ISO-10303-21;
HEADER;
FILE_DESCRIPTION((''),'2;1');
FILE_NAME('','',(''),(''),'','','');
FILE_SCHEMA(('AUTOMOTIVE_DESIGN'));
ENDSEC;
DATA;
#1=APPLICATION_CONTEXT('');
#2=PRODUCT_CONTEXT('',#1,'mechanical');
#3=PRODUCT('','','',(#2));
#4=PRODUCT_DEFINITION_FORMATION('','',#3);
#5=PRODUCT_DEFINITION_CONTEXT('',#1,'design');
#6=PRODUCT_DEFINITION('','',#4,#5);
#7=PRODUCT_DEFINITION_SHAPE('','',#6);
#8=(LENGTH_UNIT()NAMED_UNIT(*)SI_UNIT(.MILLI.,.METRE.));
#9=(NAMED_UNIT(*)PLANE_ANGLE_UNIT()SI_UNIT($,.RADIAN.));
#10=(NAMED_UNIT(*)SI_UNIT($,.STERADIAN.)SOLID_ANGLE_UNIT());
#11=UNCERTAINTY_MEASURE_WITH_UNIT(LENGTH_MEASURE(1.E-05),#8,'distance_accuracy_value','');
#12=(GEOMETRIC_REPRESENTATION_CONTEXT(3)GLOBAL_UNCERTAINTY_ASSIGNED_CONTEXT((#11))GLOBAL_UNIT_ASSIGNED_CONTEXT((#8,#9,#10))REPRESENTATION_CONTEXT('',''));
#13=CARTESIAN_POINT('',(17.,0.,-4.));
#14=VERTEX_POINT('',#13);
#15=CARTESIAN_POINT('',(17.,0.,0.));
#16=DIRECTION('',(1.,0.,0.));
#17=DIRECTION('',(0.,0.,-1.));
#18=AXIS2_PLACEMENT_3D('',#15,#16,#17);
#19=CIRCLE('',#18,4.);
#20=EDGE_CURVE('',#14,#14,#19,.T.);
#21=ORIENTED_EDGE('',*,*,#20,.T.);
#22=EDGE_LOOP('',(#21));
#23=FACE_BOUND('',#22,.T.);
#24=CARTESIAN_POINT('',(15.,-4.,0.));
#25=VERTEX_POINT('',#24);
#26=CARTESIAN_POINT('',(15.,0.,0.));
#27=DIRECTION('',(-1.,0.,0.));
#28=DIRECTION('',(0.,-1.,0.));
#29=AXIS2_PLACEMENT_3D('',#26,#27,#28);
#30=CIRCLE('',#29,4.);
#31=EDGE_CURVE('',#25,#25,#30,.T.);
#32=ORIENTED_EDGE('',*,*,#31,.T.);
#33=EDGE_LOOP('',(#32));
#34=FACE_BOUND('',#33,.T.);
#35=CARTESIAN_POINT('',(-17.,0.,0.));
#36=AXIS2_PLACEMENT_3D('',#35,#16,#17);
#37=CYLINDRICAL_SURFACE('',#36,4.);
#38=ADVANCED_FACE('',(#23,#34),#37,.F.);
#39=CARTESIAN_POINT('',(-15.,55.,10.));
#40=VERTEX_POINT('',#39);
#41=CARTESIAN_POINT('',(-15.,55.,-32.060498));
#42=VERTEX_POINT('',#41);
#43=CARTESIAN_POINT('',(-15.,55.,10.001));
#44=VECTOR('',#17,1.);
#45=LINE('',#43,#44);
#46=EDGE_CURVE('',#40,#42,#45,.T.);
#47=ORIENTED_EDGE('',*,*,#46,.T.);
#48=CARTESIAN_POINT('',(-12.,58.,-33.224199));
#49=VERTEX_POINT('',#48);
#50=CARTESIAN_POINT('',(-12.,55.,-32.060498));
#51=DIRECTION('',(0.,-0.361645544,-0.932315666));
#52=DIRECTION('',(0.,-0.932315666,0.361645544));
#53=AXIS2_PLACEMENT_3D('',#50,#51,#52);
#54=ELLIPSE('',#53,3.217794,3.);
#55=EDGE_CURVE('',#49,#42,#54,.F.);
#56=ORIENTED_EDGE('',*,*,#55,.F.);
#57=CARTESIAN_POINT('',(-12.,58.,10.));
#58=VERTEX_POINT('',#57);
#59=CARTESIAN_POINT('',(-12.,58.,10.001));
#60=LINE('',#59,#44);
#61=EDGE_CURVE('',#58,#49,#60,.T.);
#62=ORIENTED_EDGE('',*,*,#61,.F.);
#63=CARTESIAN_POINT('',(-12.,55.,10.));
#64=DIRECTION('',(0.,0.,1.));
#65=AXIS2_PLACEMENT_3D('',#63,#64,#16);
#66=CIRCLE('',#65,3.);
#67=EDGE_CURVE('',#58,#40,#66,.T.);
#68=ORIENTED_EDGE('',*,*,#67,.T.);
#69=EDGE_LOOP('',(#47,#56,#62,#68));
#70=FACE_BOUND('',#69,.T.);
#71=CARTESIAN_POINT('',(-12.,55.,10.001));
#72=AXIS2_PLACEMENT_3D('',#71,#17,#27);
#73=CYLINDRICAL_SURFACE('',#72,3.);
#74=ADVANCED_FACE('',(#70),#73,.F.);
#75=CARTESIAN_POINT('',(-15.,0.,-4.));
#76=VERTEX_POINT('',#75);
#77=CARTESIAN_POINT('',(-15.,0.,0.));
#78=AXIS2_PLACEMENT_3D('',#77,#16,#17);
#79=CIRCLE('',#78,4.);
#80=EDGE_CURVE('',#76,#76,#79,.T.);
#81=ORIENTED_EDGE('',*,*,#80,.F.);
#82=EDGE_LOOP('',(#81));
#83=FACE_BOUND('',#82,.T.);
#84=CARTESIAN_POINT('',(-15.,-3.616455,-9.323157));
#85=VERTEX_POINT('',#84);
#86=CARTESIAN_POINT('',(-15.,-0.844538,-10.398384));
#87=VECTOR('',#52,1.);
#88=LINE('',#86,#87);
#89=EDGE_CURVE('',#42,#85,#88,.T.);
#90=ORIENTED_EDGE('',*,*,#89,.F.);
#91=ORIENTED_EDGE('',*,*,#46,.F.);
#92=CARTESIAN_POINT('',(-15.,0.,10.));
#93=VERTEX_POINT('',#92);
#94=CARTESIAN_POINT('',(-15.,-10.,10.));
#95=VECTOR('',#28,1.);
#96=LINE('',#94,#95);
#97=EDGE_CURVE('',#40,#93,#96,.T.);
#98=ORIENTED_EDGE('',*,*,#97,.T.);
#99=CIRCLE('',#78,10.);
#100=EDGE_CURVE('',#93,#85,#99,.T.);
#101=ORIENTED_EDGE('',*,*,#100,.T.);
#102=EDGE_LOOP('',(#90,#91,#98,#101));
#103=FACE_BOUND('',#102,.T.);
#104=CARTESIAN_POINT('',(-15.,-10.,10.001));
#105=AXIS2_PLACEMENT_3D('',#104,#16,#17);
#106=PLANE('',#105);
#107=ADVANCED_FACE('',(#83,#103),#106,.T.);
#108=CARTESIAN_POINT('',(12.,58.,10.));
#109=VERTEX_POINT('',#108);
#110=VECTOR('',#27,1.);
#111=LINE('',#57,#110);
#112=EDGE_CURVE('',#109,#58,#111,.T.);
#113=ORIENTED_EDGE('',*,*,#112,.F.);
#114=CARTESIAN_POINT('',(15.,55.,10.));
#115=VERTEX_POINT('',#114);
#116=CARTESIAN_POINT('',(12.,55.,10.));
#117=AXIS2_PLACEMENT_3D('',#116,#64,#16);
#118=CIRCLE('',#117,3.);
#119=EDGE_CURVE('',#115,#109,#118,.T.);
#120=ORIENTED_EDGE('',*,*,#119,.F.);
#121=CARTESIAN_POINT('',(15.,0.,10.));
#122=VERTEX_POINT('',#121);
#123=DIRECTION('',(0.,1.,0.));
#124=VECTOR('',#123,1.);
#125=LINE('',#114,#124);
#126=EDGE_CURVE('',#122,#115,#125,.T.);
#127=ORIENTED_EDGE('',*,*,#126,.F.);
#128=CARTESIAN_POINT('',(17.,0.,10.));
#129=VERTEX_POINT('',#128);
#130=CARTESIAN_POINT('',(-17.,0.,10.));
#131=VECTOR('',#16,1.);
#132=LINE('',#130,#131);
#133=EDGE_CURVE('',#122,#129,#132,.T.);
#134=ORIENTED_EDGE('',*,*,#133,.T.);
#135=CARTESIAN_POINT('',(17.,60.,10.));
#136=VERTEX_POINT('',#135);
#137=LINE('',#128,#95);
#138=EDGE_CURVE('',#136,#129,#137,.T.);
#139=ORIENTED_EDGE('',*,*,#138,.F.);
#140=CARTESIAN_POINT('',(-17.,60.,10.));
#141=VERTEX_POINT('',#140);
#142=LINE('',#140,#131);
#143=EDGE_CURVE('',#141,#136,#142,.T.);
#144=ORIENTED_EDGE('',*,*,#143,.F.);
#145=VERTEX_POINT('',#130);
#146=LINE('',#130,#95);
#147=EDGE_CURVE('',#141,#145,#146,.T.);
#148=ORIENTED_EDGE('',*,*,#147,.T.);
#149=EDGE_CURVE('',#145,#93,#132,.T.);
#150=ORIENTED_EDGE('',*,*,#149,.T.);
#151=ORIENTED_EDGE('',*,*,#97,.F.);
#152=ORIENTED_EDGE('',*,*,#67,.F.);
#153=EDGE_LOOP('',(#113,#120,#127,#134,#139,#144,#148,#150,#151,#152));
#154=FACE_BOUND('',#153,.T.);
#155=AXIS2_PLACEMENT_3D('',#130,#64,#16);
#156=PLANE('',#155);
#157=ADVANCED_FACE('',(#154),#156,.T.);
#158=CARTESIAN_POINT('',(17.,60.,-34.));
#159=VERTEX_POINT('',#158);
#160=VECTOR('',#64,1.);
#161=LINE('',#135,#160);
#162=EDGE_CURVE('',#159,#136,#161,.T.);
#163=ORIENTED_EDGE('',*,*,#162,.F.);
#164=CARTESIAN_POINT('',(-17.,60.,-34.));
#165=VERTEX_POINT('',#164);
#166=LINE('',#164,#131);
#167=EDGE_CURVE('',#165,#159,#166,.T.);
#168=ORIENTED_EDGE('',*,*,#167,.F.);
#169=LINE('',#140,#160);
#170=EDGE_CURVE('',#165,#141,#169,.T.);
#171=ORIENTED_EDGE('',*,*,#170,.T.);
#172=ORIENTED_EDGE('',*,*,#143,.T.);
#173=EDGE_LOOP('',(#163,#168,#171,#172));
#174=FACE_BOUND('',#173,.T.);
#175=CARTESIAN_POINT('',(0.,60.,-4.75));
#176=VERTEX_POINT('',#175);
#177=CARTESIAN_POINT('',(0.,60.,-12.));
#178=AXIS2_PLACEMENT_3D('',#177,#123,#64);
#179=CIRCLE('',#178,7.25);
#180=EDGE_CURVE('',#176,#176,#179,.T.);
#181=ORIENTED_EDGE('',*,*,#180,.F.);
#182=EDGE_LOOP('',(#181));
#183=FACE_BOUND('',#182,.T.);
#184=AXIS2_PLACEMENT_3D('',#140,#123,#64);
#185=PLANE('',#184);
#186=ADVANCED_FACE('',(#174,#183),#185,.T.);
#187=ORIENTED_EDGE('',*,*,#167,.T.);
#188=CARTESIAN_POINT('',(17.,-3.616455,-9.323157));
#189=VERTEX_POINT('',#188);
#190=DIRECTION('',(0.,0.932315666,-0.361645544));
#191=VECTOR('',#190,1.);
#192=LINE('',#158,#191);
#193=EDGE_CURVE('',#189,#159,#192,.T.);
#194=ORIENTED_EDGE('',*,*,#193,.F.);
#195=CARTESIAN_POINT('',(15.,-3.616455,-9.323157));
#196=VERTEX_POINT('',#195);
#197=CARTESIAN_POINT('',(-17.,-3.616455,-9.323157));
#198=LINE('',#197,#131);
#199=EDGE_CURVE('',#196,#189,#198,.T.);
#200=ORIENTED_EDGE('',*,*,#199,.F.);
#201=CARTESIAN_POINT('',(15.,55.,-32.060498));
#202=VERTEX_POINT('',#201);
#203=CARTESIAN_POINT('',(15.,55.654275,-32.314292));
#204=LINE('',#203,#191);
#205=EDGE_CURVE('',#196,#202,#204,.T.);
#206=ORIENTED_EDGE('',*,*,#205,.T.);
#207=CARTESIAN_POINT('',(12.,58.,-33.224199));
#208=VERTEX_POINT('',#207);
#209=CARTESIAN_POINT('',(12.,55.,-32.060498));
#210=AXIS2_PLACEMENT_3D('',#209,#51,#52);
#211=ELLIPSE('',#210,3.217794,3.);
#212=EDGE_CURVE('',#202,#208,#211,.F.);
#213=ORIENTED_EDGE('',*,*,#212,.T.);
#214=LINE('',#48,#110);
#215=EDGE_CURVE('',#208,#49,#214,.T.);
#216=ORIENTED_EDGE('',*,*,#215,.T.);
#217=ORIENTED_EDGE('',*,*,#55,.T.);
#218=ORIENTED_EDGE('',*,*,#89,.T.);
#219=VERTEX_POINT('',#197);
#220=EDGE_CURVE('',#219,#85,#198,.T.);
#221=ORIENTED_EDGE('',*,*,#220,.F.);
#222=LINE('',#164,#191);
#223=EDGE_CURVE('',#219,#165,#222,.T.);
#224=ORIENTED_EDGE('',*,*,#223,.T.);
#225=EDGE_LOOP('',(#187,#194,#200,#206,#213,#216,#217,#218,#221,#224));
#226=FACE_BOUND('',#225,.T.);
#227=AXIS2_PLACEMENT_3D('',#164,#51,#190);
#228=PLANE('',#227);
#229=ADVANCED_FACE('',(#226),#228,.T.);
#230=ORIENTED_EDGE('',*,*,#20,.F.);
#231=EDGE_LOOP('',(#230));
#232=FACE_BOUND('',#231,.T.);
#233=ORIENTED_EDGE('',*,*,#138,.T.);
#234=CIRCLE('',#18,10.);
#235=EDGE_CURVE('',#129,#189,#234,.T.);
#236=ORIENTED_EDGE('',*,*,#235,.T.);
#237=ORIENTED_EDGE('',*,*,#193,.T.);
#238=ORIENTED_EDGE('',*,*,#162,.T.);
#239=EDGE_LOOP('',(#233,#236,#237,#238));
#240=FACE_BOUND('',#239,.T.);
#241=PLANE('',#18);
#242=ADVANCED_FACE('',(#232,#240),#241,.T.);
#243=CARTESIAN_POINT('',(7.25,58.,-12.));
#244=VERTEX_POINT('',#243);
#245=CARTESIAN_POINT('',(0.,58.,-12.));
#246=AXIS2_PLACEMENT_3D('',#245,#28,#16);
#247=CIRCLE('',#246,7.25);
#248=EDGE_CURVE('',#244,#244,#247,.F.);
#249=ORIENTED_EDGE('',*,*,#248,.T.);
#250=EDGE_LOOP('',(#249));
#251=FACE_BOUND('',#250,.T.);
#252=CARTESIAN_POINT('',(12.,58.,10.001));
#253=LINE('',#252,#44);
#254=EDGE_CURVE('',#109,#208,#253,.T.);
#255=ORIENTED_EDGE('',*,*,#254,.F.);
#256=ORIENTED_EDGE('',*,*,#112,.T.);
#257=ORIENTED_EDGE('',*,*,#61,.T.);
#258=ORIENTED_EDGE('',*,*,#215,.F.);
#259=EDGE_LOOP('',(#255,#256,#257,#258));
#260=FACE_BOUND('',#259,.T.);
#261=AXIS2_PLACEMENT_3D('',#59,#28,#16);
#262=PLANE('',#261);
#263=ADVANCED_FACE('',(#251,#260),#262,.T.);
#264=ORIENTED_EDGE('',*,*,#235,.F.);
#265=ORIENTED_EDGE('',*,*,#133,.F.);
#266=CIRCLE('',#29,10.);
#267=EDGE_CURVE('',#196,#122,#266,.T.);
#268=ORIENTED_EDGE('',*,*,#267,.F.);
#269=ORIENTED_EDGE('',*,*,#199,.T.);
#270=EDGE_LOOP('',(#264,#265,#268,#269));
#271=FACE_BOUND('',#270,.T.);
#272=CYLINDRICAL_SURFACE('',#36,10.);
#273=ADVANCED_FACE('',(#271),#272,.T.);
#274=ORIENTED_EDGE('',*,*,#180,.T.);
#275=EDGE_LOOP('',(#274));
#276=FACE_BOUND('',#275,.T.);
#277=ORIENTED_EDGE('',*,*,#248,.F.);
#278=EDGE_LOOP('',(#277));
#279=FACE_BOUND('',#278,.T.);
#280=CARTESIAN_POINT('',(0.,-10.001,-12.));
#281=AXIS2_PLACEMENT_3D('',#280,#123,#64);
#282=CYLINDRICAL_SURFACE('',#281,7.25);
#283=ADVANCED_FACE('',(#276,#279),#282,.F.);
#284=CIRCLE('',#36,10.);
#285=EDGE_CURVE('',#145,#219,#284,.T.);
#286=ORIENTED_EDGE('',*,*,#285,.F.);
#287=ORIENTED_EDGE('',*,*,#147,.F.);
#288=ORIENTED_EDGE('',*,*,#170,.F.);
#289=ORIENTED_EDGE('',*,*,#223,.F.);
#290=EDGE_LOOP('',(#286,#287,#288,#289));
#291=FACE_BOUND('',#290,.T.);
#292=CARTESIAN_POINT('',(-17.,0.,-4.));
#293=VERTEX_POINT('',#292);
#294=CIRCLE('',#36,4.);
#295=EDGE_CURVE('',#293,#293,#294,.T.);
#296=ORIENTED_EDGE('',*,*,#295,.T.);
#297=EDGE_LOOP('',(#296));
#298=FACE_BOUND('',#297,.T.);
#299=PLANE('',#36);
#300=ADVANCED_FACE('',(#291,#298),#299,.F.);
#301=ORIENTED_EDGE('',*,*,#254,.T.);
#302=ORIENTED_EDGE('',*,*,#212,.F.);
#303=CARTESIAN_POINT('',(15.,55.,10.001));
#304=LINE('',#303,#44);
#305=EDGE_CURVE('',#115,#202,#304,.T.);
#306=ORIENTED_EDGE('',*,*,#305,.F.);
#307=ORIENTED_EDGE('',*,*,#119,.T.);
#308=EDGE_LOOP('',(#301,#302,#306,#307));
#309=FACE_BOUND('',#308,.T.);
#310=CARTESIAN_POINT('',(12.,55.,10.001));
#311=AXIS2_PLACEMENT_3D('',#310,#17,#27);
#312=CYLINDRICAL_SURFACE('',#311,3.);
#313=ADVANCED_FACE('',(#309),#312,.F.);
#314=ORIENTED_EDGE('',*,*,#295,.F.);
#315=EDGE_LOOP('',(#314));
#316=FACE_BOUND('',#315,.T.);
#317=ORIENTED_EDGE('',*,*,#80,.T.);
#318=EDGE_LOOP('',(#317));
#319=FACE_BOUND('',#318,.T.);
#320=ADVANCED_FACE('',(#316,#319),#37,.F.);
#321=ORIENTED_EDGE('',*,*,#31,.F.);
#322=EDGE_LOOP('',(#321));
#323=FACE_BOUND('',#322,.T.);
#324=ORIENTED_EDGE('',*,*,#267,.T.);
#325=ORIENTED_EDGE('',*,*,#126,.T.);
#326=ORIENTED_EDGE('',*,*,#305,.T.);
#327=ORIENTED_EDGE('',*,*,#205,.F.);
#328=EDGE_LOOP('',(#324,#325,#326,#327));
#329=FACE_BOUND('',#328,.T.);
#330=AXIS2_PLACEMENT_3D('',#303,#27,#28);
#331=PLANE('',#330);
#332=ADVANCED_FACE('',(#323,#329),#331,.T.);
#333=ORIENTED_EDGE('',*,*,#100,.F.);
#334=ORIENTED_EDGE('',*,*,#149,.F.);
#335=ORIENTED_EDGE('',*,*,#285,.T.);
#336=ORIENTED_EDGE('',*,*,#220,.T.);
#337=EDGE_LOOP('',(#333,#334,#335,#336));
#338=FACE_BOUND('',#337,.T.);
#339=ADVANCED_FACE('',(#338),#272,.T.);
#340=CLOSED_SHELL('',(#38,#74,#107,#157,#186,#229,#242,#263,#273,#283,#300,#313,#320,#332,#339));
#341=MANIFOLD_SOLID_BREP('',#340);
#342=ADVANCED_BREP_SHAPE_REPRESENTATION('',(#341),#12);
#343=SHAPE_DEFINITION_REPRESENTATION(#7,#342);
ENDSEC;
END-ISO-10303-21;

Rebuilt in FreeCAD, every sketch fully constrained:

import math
import FreeCAD as App
import Part
import Sketcher
Q = App.Units.Quantity

doc = App.newDocument("Part")
body = doc.addObject("PartDesign::Body", "Body")

# Sketch on YZ plane
sketch1 = body.newObject("Sketcher::SketchObject", "Sketch")
sketch1.AttachmentSupport = (doc.getObject("YZ_Plane"), [""])
sketch1.MapMode = "FlatFace"
sketch1.AttachmentOffset = App.Placement(App.Vector(0, 0, 17), App.Rotation())
sketch1.addGeometry([
    Part.LineSegment(App.Vector(60, 10, 0), App.Vector(0, 10, 0)),  # 0
    Part.ArcOfCircle(Part.Circle(App.Vector(0, 0, 0), App.Vector(0, 0, 1), 10), math.radians(90), math.radians(249)),  # 1
    Part.LineSegment(App.Vector(-3.6, -9.3, 0), App.Vector(60, -34, 0)),  # 2
    Part.LineSegment(App.Vector(60, -34, 0), App.Vector(60, 10, 0)),  # 3
    Part.Circle(App.Vector(0, 0, 0), App.Vector(0, 0, 1), 4),  # 4
], False)
sketch1.addConstraint([
    Sketcher.Constraint("Tangent", 0, 2, 1, 1),
    Sketcher.Constraint("Tangent", 1, 2, 2, 1),
    Sketcher.Constraint("Coincident", 2, 2, 3, 1),
    Sketcher.Constraint("Coincident", 3, 2, 0, 1),
    Sketcher.Constraint("Horizontal", 0),
    Sketcher.Constraint("Vertical", 3),
    Sketcher.Constraint("Coincident", 1, 3, -1, 1),
    Sketcher.Constraint("Coincident", 4, 3, -1, 1),
    Sketcher.Constraint("Diameter", 4, Q("8 mm")),
    Sketcher.Constraint("Radius", 1, Q("10 mm")),
    Sketcher.Constraint("DistanceX", 0, 2, 0, 1, Q("60 mm")),
    Sketcher.Constraint("DistanceY", 3, 1, 3, 2, Q("44 mm")),
])
pad1 = body.newObject("PartDesign::Pad", "Pad")
pad1.Profile = sketch1
pad1.Length = 34
pad1.Reversed = True

# Sketch on XY plane
sketch2 = body.newObject("Sketcher::SketchObject", "Sketch001")
sketch2.AttachmentSupport = (doc.getObject("XY_Plane"), [""])
sketch2.MapMode = "FlatFace"
sketch2.addGeometry([
    Part.LineSegment(App.Vector(-15, -10, 0), App.Vector(15, -10, 0)),  # 0
    Part.LineSegment(App.Vector(15, -10, 0), App.Vector(15, 55, 0)),  # 1
    Part.ArcOfCircle(Part.Circle(App.Vector(12, 55, 0), App.Vector(0, 0, 1), 3), math.radians(0), math.radians(90)),  # 2
    Part.LineSegment(App.Vector(12, 58, 0), App.Vector(-12, 58, 0)),  # 3
    Part.ArcOfCircle(Part.Circle(App.Vector(-12, 55, 0), App.Vector(0, 0, 1), 3), math.radians(90), math.radians(180)),  # 4
    Part.LineSegment(App.Vector(-15, 55, 0), App.Vector(-15, -10, 0)),  # 5
], False)
sketch2.addConstraint([
    Sketcher.Constraint("Coincident", 0, 2, 1, 1),
    Sketcher.Constraint("Tangent", 1, 2, 2, 1),
    Sketcher.Constraint("Tangent", 2, 2, 3, 1),
    Sketcher.Constraint("Tangent", 3, 2, 4, 1),
    Sketcher.Constraint("Tangent", 4, 2, 5, 1),
    Sketcher.Constraint("Coincident", 5, 2, 0, 1),
    Sketcher.Constraint("Horizontal", 0),
    Sketcher.Constraint("Vertical", 1),
    Sketcher.Constraint("Horizontal", 3),
    Sketcher.Constraint("Vertical", 5),
    Sketcher.Constraint("Equal", 2, 4),
    Sketcher.Constraint("Radius", 2, Q("3 mm")),
    Sketcher.Constraint("DistanceX", 0, 1, 0, 2, Q("30 mm")),
    Sketcher.Constraint("DistanceY", 1, 1, 1, 2, Q("65 mm")),
    Sketcher.Constraint("DistanceX", -1, 1, 2, 3, Q("12 mm")),
    Sketcher.Constraint("DistanceY", -1, 1, 2, 3, Q("55 mm")),
])
pocket1 = body.newObject("PartDesign::Pocket", "Pocket")
pocket1.Profile = sketch2
pocket1.Type = "UpToFirst"

# Sketch on XY plane
sketch3 = body.newObject("Sketcher::SketchObject", "Sketch002")
sketch3.AttachmentSupport = (doc.getObject("XY_Plane"), [""])
sketch3.MapMode = "FlatFace"
sketch3.addGeometry([
    Part.LineSegment(App.Vector(-15, -10, 0), App.Vector(15, -10, 0)),  # 0
    Part.LineSegment(App.Vector(15, -10, 0), App.Vector(15, 55, 0)),  # 1
    Part.ArcOfCircle(Part.Circle(App.Vector(12, 55, 0), App.Vector(0, 0, 1), 3), math.radians(0), math.radians(90)),  # 2
    Part.LineSegment(App.Vector(12, 58, 0), App.Vector(-12, 58, 0)),  # 3
    Part.ArcOfCircle(Part.Circle(App.Vector(-12, 55, 0), App.Vector(0, 0, 1), 3), math.radians(90), math.radians(180)),  # 4
    Part.LineSegment(App.Vector(-15, 55, 0), App.Vector(-15, -10, 0)),  # 5
], False)
sketch3.addConstraint([
    Sketcher.Constraint("Coincident", 0, 2, 1, 1),
    Sketcher.Constraint("Tangent", 1, 2, 2, 1),
    Sketcher.Constraint("Tangent", 2, 2, 3, 1),
    Sketcher.Constraint("Tangent", 3, 2, 4, 1),
    Sketcher.Constraint("Tangent", 4, 2, 5, 1),
    Sketcher.Constraint("Coincident", 5, 2, 0, 1),
    Sketcher.Constraint("Horizontal", 0),
    Sketcher.Constraint("Vertical", 1),
    Sketcher.Constraint("Horizontal", 3),
    Sketcher.Constraint("Vertical", 5),
    Sketcher.Constraint("Equal", 2, 4),
    Sketcher.Constraint("Radius", 2, Q("3 mm")),
    Sketcher.Constraint("DistanceX", 0, 1, 0, 2, Q("30 mm")),
    Sketcher.Constraint("DistanceY", 1, 1, 1, 2, Q("65 mm")),
    Sketcher.Constraint("DistanceX", -1, 1, 2, 3, Q("12 mm")),
    Sketcher.Constraint("DistanceY", -1, 1, 2, 3, Q("55 mm")),
])
pocket2 = body.newObject("PartDesign::Pocket", "Pocket001")
pocket2.Profile = sketch3
pocket2.Type = "UpToFirst"
pocket2.Reversed = True

# Sketch on XZ plane
sketch4 = body.newObject("Sketcher::SketchObject", "Sketch003")
sketch4.AttachmentSupport = (doc.getObject("XZ_Plane"), [""])
sketch4.MapMode = "FlatFace"
sketch4.AttachmentOffset = App.Placement(App.Vector(0, 0, -60), App.Rotation())
sketch4.addGeometry(Part.Circle(App.Vector(0, -12, 0), App.Vector(0, 0, 1), 7), False)
sketch4.addConstraint([
    Sketcher.Constraint("PointOnObject", 0, 3, -2),
    Sketcher.Constraint("Diameter", 0, Q("14.5 mm")),
    Sketcher.Constraint("DistanceY", 0, 3, -1, 1, Q("12 mm")),
])
pocket3 = body.newObject("PartDesign::Pocket", "Pocket002")
pocket3.Profile = sketch4
pocket3.Type = "UpToFirst"
pocket3.Reversed = True

doc.recompute()
